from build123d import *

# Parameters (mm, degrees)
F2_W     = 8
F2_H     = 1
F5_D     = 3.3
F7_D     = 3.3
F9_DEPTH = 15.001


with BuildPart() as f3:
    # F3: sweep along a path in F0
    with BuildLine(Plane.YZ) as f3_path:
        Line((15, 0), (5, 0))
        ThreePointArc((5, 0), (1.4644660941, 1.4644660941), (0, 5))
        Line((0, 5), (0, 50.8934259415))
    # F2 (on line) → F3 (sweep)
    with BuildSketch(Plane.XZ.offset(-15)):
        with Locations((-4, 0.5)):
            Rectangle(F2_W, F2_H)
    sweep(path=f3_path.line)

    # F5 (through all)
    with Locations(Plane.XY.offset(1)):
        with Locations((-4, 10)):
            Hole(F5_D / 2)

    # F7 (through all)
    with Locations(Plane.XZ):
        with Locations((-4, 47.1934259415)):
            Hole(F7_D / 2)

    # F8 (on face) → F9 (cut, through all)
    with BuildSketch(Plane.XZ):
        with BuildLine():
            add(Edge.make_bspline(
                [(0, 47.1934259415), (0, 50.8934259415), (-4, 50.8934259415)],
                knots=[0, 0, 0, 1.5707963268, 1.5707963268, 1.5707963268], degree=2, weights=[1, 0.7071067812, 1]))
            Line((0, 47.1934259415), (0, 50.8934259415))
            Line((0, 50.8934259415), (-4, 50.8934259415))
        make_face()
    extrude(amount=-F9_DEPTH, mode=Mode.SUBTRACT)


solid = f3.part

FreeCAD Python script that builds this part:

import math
import FreeCAD as App
import Part
import Sketcher

V = App.Vector
Q = App.Units.Quantity

doc = App.newDocument("Part")
params = doc.addObject("Spreadsheet::Sheet", "Params")
for row, (alias, value) in enumerate([
    ("sketch1_width", "8 mm"),
    ("sketch1_height", "1 mm"),
    ("sketch2_radius", "5 mm"),
    ("sketch2_width", "10 mm"),
    ("sketch3_diameter", "3.3 mm"),
    ("hole_diameter", "3.3 mm"),
    ("sketch4_diameter", "3.3 mm"),
    ("hole2_diameter", "3.3 mm"),
], start=1):
    params.set(f"A{row}", alias)
    params.set(f"B{row}", "=" + value)
    params.setAlias(f"B{row}", alias)

body = doc.addObject("PartDesign::Body", "Body")

# Sketch on XZ plane
sketch1 = doc.addObject("Sketcher::SketchObject", "Sketch")
body.addObject(sketch1)
sketch1.AttachmentSupport = (doc.XZ_Plane, [""])
sketch1.MapMode = "FlatFace"
sketch1.AttachmentOffset = App.Placement(V(0, 0, -15), App.Rotation())
sketch1.addGeometry(Part.LineSegment(V(-8, 1, 0), V(-8, 0, 0)), False)
sketch1.addGeometry(Part.LineSegment(V(-8, 0, 0), V(0, 0, 0)), False)
sketch1.addGeometry(Part.LineSegment(V(0, 0, 0), V(0, 1, 0)), False)
sketch1.addGeometry(Part.LineSegment(V(0, 1, 0), V(-8, 1, 0)), False)
sketch1.addConstraint(Sketcher.Constraint("Coincident", 0, 2, 1, 1))
sketch1.addConstraint(Sketcher.Constraint("Coincident", 1, 2, 2, 1))
sketch1.addConstraint(Sketcher.Constraint("Coincident", 2, 2, 3, 1))
sketch1.addConstraint(Sketcher.Constraint("Coincident", 3, 2, 0, 1))
sketch1.addConstraint(Sketcher.Constraint("Vertical", 0))
sketch1.addConstraint(Sketcher.Constraint("Horizontal", 1))
sketch1.addConstraint(Sketcher.Constraint("Vertical", 2))
sketch1.addConstraint(Sketcher.Constraint("Horizontal", 3))
sketch1.addConstraint(Sketcher.Constraint("Coincident", 1, 2, -1, 1))
sketch1.addConstraint(Sketcher.Constraint("DistanceX", 1, 1, 1, 2, Q("8 mm")))
sketch1.addConstraint(Sketcher.Constraint("DistanceY", 0, 2, 0, 1, Q("1 mm")))
sketch1.setExpression("Constraints[9]", "Params.sketch1_width")
sketch1.setExpression("Constraints[10]", "Params.sketch1_height")

# Sketch on YZ plane
sketch2 = doc.addObject("Sketcher::SketchObject", "Sketch001")
body.addObject(sketch2)
sketch2.AttachmentSupport = (doc.YZ_Plane, [""])
sketch2.MapMode = "FlatFace"
sketch2.addGeometry(Part.LineSegment(V(15, 0, 0), V(5, 0, 0)), False)
sketch2.addGeometry(Part.ArcOfCircle(Part.Circle(V(5, 5, 0), V(0, 0, 1), 5), math.radians(180), math.radians(270)), False)
sketch2.addGeometry(Part.LineSegment(V(0, 5, 0), V(0, 51, 0)), False)
sketch2.addConstraint(Sketcher.Constraint("Tangent", 0, 2, 1, 2))
sketch2.addConstraint(Sketcher.Constraint("Tangent", 1, 1, 2, 1))
sketch2.addConstraint(Sketcher.Constraint("Horizontal", 0))
sketch2.addConstraint(Sketcher.Constraint("Vertical", 2))
sketch2.addConstraint(Sketcher.Constraint("PointOnObject", 0, 1, -1))
sketch2.addConstraint(Sketcher.Constraint("PointOnObject", 1, 1, -2))
sketch2.addConstraint(Sketcher.Constraint("Radius", 1, Q("5 mm")))
sketch2.addConstraint(Sketcher.Constraint("DistanceX", 0, 2, 0, 1, Q("10 mm")))
sketch2.addConstraint(Sketcher.Constraint("DistanceY", 2, 1, 2, 2, Q("45.893426 mm")))
sketch2.setExpression("Constraints[6]", "Params.sketch2_radius")
sketch2.setExpression("Constraints[7]", "Params.sketch2_width")
doc.recompute()

additivepipe = doc.addObject("PartDesign::AdditivePipe", "AdditivePipe")
body.addObject(additivepipe)
additivepipe.Profile = sketch1
additivepipe.Spine = (sketch2, ["Edge1", "Edge2", "Edge3"])

# Sketch on XY plane
sketch3 = doc.addObject("Sketcher::SketchObject", "Sketch002")
body.addObject(sketch3)
sketch3.AttachmentSupport = (doc.XY_Plane, [""])
sketch3.MapMode = "FlatFace"
sketch3.AttachmentOffset = App.Placement(V(0, 0, 1), App.Rotation())
sketch3.addGeometry(Part.Circle(V(-4, 10, 0), V(0, 0, 1), 1.6), False)
sketch3.addConstraint(Sketcher.Constraint("Diameter", 0, Q("3.3 mm")))
sketch3.addConstraint(Sketcher.Constraint("DistanceX", 0, 3, -1, 1, Q("4 mm")))
sketch3.addConstraint(Sketcher.Constraint("DistanceY", -1, 1, 0, 3, Q("10 mm")))
sketch3.setExpression("Constraints[0]", "Params.sketch3_diameter")
doc.recompute()
hole = doc.addObject("PartDesign::Hole", "Hole")
body.addObject(hole)
hole.Profile = sketch3
hole.ThreadType = "None"
hole.setExpression("Diameter", "Params.hole_diameter")
hole.DepthType = "ThroughAll"

# Sketch on XZ plane
sketch4 = doc.addObject("Sketcher::SketchObject", "Sketch003")
body.addObject(sketch4)
sketch4.AttachmentSupport = (doc.XZ_Plane, [""])
sketch4.MapMode = "FlatFace"
sketch4.addGeometry(Part.Circle(V(-4, 47.2, 0), V(0, 0, 1), 1.6), False)
sketch4.addConstraint(Sketcher.Constraint("Diameter", 0, Q("3.3 mm")))
sketch4.addConstraint(Sketcher.Constraint("DistanceX", 0, 3, -1, 1, Q("4 mm")))
sketch4.addConstraint(Sketcher.Constraint("DistanceY", -1, 1, 0, 3, Q("47.193426 mm")))
sketch4.setExpression("Constraints[0]", "Params.sketch4_diameter")
doc.recompute()
hole2 = doc.addObject("PartDesign::Hole", "Hole001")
body.addObject(hole2)
hole2.Profile = sketch4
hole2.ThreadType = "None"
hole2.setExpression("Diameter", "Params.hole2_diameter")
hole2.DepthType = "ThroughAll"

# Sketch on XZ plane
sketch5 = doc.addObject("Sketcher::SketchObject", "Sketch004")
body.addObject(sketch5)
sketch5.AttachmentSupport = (doc.XZ_Plane, [""])
sketch5.MapMode = "FlatFace"
sketch5.addGeometry(Part.BSplineCurve([V(0, 47.193426, 0), V(0, 50.893426, 0), V(-4, 50.893426, 0)], [3, 3], [0, 1.570796327], False, 2, [1, 0.707106781, 1], False), False)
sketch5.addGeometry(Part.LineSegment(V(0, 47.193426, 0), V(0, 50.893426, 0)), False)
sketch5.addGeometry(Part.LineSegment(V(0, 50.893426, 0), V(-4, 50.893426, 0)), False)
sketch5.addConstraint(Sketcher.Constraint("Block", 0))
sketch5.addConstraint(Sketcher.Constraint("Coincident", 0, 1, 1, 1))
sketch5.addConstraint(Sketcher.Constraint("Coincident", 1, 2, 2, 1))
sketch5.addConstraint(Sketcher.Constraint("Coincident", 2, 2, 0, 2))
sketch5.addConstraint(Sketcher.Constraint("Vertical", 1))
sketch5.addConstraint(Sketcher.Constraint("Horizontal", 2))
pocket1 = doc.addObject("PartDesign::Pocket", "Pocket")
body.addObject(pocket1)
pocket1.Profile = sketch5
pocket1.Type = "ThroughAll"

doc.recompute()
